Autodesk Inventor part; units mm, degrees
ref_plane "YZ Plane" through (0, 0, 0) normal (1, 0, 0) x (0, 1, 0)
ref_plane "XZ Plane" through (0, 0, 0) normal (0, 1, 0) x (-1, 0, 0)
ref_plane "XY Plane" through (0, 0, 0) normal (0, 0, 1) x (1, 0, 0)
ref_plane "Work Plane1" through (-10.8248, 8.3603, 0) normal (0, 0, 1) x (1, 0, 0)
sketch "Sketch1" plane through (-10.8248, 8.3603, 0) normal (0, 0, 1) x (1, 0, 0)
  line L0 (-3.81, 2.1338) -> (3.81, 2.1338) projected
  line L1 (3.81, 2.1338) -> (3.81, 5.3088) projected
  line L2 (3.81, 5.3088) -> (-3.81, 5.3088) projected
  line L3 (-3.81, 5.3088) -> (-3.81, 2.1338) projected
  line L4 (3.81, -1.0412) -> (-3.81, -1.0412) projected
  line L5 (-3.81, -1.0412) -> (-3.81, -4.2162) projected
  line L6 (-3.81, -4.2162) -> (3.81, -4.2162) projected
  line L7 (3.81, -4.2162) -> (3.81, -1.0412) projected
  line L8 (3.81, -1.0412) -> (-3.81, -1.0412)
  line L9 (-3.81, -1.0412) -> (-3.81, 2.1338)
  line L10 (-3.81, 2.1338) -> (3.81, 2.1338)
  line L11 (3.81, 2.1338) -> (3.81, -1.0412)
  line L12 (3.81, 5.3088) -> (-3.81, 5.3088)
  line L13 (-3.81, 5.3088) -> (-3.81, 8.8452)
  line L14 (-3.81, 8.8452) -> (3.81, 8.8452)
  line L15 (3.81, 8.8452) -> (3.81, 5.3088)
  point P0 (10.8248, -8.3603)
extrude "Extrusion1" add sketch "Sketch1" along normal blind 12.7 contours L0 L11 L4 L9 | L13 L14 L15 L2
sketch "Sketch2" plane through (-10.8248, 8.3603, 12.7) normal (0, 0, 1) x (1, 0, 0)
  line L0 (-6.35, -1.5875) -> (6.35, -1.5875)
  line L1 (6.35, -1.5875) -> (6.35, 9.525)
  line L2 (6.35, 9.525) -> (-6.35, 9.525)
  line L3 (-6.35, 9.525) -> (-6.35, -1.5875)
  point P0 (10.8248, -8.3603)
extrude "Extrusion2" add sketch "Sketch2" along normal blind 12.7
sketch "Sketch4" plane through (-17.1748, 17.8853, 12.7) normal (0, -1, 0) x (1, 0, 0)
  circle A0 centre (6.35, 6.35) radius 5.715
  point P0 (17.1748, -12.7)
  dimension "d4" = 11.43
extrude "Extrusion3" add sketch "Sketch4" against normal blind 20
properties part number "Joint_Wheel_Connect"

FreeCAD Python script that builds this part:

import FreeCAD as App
import Part
import Sketcher

V = App.Vector
Q = App.Units.Quantity


def add_polygon(sketch, points):
    """Adds a closed chain of lines whose ends are joined by coincident constraints."""
    first, n = sketch.GeometryCount, len(points)
    for a, b in zip(points, points[1:] + points[:1]):
        sketch.addGeometry(Part.LineSegment(App.Vector(*a, 0), App.Vector(*b, 0)), False)
    for i in range(n):
        sketch.addConstraint(Sketcher.Constraint("Coincident", first + i, 2, first + (i + 1) % n, 1))

doc = App.newDocument("Part")
body = doc.addObject("PartDesign::Body", "Body")
body.AllowCompound = True

sketch1 = body.newObject("Sketcher::SketchObject", "Sketch")
sketch1.AttachmentSupport = (doc.getObject("XY_Plane"), [""])
sketch1.MapMode = "FlatFace"
add_polygon(sketch1, [(-7.0148, 10.4941), (-14.6348, 10.4941), (-14.6348, 7.3191), (-7.0148, 7.3191)])
add_polygon(sketch1, [(-14.6348, 17.2055), (-14.6348, 13.6691), (-7.0148, 13.6691), (-7.0148, 17.2055)])
sketch1.addConstraint(Sketcher.Constraint("Horizontal", 0))
sketch1.addConstraint(Sketcher.Constraint("Vertical", 1))
sketch1.addConstraint(Sketcher.Constraint("Horizontal", 2))
sketch1.addConstraint(Sketcher.Constraint("Vertical", 3))
sketch1.addConstraint(Sketcher.Constraint("Vertical", 4))
sketch1.addConstraint(Sketcher.Constraint("Horizontal", 5))
sketch1.addConstraint(Sketcher.Constraint("Vertical", 6))
sketch1.addConstraint(Sketcher.Constraint("Horizontal", 7))
sketch1.addConstraint(Sketcher.Constraint("Vertical", 1, 2, 4, 2))
sketch1.addConstraint(Sketcher.Constraint("Vertical", 3, 2, 5, 2))
sketch1.addConstraint(Sketcher.Constraint("DistanceX", 0, 2, 0, 1, Q("0.3 in")))
sketch1.addConstraint(Sketcher.Constraint("DistanceY", 1, 2, 1, 1, Q("0.125 in")))
sketch1.addConstraint(Sketcher.Constraint("DistanceY", 1, 2, 4, 2, Q("0.25 in")))
sketch1.addConstraint(Sketcher.Constraint("DistanceY", 4, 2, 4, 1, Q("3.5364 mm")))
sketch1.addConstraint(Sketcher.Constraint("DistanceX", 0, 2, -1, 1, Q("14.6348 mm")))
sketch1.addConstraint(Sketcher.Constraint("DistanceY", -1, 1, 0, 2, Q("10.494 mm")))
pad1 = body.newObject("PartDesign::Pad", "Pad")
pad1.Profile = sketch1
pad1.Length = Q("0.5 in")

sketch2 = body.newObject("Sketcher::SketchObject", "Sketch001")
sketch2.AttachmentSupport = (doc.getObject("XY_Plane"), [""])
sketch2.MapMode = "FlatFace"
sketch2.AttachmentOffset = App.Placement(V(0, 0, 0.5 * 25.4), App.Rotation())
add_polygon(sketch2, [(-17.1748, 17.8853), (-17.1748, 6.7728), (-4.4748, 6.7728), (-4.4748, 17.8853)])
sketch2.addConstraint(Sketcher.Constraint("Vertical", 0))
sketch2.addConstraint(Sketcher.Constraint("Horizontal", 1))
sketch2.addConstraint(Sketcher.Constraint("Vertical", 2))
sketch2.addConstraint(Sketcher.Constraint("Horizontal", 3))
sketch2.addConstraint(Sketcher.Constraint("DistanceX", 1, 1, 1, 2, Q("0.5 in")))
sketch2.addConstraint(Sketcher.Constraint("DistanceY", 0, 2, 0, 1, Q("0.4375 in")))
sketch2.addConstraint(Sketcher.Constraint("DistanceX", 0, 2, -1, 1, Q("17.1748 mm")))
sketch2.addConstraint(Sketcher.Constraint("DistanceY", -1, 1, 0, 2, Q("6.7728 mm")))
pad2 = body.newObject("PartDesign::Pad", "Pad001")
pad2.Profile = sketch2
pad2.Length = Q("0.5 in")

sketch3 = body.newObject("Sketcher::SketchObject", "Sketch002")
sketch3.AttachmentSupport = (doc.getObject("XZ_Plane"), [""])
sketch3.MapMode = "FlatFace"
sketch3.AttachmentOffset = App.Placement(V(0, 0, -17.8853), App.Rotation())
sketch3.addGeometry(Part.Circle(V(-10.8248, 19.05, 0), V(0, 0, 1), 5.715), False)
sketch3.addConstraint(Sketcher.Constraint("Diameter", 0, Q("0.45 in")))
sketch3.addConstraint(Sketcher.Constraint("DistanceY", -1, 1, 0, 3, Q("0.75 in")))
sketch3.addConstraint(Sketcher.Constraint("DistanceX", 0, 3, -1, 1, Q("10.8248 mm")))
pad3 = body.newObject("PartDesign::Pad", "Pad002")
pad3.Profile = sketch3
pad3.Length = Q("0.7874016 in")
pad3.Reversed = True

doc.recompute()
